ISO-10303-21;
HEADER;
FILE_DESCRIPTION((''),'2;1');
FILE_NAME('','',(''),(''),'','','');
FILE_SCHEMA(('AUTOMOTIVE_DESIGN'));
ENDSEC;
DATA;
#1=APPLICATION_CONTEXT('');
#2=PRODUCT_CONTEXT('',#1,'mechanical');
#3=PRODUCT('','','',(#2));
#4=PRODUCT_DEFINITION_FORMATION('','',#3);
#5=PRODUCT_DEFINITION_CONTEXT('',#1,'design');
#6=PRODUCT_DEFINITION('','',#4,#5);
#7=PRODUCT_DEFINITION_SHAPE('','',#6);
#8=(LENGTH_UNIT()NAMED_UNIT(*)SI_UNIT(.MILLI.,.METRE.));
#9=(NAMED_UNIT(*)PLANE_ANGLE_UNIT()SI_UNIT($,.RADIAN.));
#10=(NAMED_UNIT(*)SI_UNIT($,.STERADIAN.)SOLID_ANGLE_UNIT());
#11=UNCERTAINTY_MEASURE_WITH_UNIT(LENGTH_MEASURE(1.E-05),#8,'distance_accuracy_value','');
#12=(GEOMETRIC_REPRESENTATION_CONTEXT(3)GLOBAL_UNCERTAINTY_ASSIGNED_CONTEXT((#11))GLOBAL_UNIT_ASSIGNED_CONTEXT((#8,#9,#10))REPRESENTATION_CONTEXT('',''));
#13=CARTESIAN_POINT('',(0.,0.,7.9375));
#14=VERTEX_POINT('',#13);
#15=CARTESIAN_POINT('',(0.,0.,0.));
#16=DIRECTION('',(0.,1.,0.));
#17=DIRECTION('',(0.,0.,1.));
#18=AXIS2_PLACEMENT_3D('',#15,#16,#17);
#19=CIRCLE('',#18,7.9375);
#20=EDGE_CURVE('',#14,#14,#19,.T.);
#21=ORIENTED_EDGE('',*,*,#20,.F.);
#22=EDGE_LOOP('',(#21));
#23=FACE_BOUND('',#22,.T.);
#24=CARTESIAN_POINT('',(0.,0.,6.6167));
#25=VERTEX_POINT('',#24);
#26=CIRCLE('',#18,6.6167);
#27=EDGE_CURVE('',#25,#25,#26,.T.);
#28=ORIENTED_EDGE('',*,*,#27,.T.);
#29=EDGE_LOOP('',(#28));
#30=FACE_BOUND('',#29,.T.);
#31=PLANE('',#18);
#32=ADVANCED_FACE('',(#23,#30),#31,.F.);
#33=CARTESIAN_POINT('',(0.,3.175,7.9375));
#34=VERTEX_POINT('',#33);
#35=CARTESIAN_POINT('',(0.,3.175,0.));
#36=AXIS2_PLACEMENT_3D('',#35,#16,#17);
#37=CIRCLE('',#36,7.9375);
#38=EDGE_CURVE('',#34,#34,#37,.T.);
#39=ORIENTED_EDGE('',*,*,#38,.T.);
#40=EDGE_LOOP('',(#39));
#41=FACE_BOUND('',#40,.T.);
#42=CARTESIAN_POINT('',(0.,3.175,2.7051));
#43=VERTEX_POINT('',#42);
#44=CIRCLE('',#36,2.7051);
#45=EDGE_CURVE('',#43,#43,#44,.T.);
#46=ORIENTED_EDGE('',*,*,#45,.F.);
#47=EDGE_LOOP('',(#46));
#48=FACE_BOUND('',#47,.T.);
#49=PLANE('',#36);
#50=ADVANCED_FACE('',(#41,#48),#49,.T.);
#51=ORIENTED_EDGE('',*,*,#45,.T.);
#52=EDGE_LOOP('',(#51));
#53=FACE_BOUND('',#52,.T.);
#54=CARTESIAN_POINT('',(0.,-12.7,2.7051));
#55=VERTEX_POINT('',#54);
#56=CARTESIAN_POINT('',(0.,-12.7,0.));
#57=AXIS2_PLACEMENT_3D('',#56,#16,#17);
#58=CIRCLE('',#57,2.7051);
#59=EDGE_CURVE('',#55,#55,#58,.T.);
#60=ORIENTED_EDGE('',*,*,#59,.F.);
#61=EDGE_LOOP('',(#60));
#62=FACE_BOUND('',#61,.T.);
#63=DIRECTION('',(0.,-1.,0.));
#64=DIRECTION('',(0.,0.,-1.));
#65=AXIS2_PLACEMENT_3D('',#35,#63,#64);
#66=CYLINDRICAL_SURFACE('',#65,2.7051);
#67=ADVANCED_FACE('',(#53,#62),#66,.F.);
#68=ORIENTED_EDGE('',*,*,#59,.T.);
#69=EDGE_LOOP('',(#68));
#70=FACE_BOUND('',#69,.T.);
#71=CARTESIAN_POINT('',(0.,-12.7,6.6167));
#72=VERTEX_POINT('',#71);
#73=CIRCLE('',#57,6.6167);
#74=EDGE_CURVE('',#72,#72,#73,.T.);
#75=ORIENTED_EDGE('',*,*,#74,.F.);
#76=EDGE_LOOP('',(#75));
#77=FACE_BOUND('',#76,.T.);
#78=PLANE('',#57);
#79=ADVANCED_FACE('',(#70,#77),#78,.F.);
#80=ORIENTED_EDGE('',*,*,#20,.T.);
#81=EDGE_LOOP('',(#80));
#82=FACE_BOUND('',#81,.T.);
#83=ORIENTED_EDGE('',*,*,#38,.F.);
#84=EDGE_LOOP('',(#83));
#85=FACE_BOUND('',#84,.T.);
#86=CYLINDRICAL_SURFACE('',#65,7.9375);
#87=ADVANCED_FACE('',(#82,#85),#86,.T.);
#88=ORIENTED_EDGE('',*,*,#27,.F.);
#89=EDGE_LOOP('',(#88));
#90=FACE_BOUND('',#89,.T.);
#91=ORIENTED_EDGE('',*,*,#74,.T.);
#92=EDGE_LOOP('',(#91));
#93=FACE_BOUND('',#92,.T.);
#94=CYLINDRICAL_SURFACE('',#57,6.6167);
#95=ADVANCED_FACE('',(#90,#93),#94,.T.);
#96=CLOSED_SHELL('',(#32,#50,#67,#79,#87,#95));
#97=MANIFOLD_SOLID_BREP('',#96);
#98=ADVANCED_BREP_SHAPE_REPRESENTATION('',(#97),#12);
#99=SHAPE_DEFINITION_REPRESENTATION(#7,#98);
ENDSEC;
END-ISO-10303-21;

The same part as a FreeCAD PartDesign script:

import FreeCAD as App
import Part
import Sketcher
from FreeCAD import Vector
Q = App.Units.Quantity

doc = App.newDocument("Part")
params = doc.addObject("Spreadsheet::Sheet", "Params")
for row, (alias, value) in enumerate([
    ("sketch1_diameter", "0.625 in"),
    ("sketch1_diameter2", "0.213 in"),
    ("pad1_length", "0.125 in"),
    ("sketch2_diameter", "0.521 in"),
    ("sketch2_diameter2", "0.213 in"),
    ("pad2_length", "0.5 in"),
], start=1):
    params.set(f"A{row}", alias)
    params.set(f"B{row}", "=" + value)
    params.setAlias(f"B{row}", alias)

body = doc.addObject("PartDesign::Body", "Body")

# Sketch on XZ plane
sketch1 = doc.addObject("Sketcher::SketchObject", "Sketch")
body.addObject(sketch1)
sketch1.AttachmentSupport = (doc.XZ_Plane, [""])
sketch1.MapMode = "FlatFace"
sketch1.addGeometry(Part.Circle(Vector(0, 0, 0), Vector(0, 0, 1), 7.9), False)
sketch1.addGeometry(Part.Circle(Vector(0, 0, 0), Vector(0, 0, 1), 2.7), False)
sketch1.addConstraint(Sketcher.Constraint("Coincident", 0, 3, -1, 1))
sketch1.addConstraint(Sketcher.Constraint("Coincident", 1, 3, -1, 1))
sketch1.addConstraint(Sketcher.Constraint("Diameter", 0, Q("0.625 in")))
sketch1.addConstraint(Sketcher.Constraint("Diameter", 1, Q("0.213 in")))
sketch1.setExpression("Constraints[2]", "Params.sketch1_diameter")
sketch1.setExpression("Constraints[3]", "Params.sketch1_diameter2")
pad1 = doc.addObject("PartDesign::Pad", "Pad")
body.addObject(pad1)
pad1.Profile = sketch1
pad1.setExpression("Length", "Params.pad1_length")
pad1.Reversed = True

# Sketch on XZ plane
sketch2 = doc.addObject("Sketcher::SketchObject", "Sketch001")
body.addObject(sketch2)
sketch2.AttachmentSupport = (doc.XZ_Plane, [""])
sketch2.MapMode = "FlatFace"
sketch2.AttachmentOffset = App.Placement(Vector(0, 0, 0.5 * 25.4), App.Rotation())
sketch2.addGeometry(Part.Circle(Vector(0, 0, 0), Vector(0, 0, 1), 6.6), False)
sketch2.addGeometry(Part.Circle(Vector(0, 0, 0), Vector(0, 0, 1), 2.7), False)
sketch2.addConstraint(Sketcher.Constraint("Coincident", 0, 3, -1, 1))
sketch2.addConstraint(Sketcher.Constraint("Coincident", 1, 3, -1, 1))
sketch2.addConstraint(Sketcher.Constraint("Diameter", 0, Q("0.521 in")))
sketch2.addConstraint(Sketcher.Constraint("Diameter", 1, Q("0.213 in")))
sketch2.setExpression("Constraints[2]", "Params.sketch2_diameter")
sketch2.setExpression("Constraints[3]", "Params.sketch2_diameter2")
pad2 = doc.addObject("PartDesign::Pad", "Pad001")
body.addObject(pad2)
pad2.Profile = sketch2
pad2.setExpression("Length", "Params.pad2_length")
pad2.Reversed = True

doc.recompute()
